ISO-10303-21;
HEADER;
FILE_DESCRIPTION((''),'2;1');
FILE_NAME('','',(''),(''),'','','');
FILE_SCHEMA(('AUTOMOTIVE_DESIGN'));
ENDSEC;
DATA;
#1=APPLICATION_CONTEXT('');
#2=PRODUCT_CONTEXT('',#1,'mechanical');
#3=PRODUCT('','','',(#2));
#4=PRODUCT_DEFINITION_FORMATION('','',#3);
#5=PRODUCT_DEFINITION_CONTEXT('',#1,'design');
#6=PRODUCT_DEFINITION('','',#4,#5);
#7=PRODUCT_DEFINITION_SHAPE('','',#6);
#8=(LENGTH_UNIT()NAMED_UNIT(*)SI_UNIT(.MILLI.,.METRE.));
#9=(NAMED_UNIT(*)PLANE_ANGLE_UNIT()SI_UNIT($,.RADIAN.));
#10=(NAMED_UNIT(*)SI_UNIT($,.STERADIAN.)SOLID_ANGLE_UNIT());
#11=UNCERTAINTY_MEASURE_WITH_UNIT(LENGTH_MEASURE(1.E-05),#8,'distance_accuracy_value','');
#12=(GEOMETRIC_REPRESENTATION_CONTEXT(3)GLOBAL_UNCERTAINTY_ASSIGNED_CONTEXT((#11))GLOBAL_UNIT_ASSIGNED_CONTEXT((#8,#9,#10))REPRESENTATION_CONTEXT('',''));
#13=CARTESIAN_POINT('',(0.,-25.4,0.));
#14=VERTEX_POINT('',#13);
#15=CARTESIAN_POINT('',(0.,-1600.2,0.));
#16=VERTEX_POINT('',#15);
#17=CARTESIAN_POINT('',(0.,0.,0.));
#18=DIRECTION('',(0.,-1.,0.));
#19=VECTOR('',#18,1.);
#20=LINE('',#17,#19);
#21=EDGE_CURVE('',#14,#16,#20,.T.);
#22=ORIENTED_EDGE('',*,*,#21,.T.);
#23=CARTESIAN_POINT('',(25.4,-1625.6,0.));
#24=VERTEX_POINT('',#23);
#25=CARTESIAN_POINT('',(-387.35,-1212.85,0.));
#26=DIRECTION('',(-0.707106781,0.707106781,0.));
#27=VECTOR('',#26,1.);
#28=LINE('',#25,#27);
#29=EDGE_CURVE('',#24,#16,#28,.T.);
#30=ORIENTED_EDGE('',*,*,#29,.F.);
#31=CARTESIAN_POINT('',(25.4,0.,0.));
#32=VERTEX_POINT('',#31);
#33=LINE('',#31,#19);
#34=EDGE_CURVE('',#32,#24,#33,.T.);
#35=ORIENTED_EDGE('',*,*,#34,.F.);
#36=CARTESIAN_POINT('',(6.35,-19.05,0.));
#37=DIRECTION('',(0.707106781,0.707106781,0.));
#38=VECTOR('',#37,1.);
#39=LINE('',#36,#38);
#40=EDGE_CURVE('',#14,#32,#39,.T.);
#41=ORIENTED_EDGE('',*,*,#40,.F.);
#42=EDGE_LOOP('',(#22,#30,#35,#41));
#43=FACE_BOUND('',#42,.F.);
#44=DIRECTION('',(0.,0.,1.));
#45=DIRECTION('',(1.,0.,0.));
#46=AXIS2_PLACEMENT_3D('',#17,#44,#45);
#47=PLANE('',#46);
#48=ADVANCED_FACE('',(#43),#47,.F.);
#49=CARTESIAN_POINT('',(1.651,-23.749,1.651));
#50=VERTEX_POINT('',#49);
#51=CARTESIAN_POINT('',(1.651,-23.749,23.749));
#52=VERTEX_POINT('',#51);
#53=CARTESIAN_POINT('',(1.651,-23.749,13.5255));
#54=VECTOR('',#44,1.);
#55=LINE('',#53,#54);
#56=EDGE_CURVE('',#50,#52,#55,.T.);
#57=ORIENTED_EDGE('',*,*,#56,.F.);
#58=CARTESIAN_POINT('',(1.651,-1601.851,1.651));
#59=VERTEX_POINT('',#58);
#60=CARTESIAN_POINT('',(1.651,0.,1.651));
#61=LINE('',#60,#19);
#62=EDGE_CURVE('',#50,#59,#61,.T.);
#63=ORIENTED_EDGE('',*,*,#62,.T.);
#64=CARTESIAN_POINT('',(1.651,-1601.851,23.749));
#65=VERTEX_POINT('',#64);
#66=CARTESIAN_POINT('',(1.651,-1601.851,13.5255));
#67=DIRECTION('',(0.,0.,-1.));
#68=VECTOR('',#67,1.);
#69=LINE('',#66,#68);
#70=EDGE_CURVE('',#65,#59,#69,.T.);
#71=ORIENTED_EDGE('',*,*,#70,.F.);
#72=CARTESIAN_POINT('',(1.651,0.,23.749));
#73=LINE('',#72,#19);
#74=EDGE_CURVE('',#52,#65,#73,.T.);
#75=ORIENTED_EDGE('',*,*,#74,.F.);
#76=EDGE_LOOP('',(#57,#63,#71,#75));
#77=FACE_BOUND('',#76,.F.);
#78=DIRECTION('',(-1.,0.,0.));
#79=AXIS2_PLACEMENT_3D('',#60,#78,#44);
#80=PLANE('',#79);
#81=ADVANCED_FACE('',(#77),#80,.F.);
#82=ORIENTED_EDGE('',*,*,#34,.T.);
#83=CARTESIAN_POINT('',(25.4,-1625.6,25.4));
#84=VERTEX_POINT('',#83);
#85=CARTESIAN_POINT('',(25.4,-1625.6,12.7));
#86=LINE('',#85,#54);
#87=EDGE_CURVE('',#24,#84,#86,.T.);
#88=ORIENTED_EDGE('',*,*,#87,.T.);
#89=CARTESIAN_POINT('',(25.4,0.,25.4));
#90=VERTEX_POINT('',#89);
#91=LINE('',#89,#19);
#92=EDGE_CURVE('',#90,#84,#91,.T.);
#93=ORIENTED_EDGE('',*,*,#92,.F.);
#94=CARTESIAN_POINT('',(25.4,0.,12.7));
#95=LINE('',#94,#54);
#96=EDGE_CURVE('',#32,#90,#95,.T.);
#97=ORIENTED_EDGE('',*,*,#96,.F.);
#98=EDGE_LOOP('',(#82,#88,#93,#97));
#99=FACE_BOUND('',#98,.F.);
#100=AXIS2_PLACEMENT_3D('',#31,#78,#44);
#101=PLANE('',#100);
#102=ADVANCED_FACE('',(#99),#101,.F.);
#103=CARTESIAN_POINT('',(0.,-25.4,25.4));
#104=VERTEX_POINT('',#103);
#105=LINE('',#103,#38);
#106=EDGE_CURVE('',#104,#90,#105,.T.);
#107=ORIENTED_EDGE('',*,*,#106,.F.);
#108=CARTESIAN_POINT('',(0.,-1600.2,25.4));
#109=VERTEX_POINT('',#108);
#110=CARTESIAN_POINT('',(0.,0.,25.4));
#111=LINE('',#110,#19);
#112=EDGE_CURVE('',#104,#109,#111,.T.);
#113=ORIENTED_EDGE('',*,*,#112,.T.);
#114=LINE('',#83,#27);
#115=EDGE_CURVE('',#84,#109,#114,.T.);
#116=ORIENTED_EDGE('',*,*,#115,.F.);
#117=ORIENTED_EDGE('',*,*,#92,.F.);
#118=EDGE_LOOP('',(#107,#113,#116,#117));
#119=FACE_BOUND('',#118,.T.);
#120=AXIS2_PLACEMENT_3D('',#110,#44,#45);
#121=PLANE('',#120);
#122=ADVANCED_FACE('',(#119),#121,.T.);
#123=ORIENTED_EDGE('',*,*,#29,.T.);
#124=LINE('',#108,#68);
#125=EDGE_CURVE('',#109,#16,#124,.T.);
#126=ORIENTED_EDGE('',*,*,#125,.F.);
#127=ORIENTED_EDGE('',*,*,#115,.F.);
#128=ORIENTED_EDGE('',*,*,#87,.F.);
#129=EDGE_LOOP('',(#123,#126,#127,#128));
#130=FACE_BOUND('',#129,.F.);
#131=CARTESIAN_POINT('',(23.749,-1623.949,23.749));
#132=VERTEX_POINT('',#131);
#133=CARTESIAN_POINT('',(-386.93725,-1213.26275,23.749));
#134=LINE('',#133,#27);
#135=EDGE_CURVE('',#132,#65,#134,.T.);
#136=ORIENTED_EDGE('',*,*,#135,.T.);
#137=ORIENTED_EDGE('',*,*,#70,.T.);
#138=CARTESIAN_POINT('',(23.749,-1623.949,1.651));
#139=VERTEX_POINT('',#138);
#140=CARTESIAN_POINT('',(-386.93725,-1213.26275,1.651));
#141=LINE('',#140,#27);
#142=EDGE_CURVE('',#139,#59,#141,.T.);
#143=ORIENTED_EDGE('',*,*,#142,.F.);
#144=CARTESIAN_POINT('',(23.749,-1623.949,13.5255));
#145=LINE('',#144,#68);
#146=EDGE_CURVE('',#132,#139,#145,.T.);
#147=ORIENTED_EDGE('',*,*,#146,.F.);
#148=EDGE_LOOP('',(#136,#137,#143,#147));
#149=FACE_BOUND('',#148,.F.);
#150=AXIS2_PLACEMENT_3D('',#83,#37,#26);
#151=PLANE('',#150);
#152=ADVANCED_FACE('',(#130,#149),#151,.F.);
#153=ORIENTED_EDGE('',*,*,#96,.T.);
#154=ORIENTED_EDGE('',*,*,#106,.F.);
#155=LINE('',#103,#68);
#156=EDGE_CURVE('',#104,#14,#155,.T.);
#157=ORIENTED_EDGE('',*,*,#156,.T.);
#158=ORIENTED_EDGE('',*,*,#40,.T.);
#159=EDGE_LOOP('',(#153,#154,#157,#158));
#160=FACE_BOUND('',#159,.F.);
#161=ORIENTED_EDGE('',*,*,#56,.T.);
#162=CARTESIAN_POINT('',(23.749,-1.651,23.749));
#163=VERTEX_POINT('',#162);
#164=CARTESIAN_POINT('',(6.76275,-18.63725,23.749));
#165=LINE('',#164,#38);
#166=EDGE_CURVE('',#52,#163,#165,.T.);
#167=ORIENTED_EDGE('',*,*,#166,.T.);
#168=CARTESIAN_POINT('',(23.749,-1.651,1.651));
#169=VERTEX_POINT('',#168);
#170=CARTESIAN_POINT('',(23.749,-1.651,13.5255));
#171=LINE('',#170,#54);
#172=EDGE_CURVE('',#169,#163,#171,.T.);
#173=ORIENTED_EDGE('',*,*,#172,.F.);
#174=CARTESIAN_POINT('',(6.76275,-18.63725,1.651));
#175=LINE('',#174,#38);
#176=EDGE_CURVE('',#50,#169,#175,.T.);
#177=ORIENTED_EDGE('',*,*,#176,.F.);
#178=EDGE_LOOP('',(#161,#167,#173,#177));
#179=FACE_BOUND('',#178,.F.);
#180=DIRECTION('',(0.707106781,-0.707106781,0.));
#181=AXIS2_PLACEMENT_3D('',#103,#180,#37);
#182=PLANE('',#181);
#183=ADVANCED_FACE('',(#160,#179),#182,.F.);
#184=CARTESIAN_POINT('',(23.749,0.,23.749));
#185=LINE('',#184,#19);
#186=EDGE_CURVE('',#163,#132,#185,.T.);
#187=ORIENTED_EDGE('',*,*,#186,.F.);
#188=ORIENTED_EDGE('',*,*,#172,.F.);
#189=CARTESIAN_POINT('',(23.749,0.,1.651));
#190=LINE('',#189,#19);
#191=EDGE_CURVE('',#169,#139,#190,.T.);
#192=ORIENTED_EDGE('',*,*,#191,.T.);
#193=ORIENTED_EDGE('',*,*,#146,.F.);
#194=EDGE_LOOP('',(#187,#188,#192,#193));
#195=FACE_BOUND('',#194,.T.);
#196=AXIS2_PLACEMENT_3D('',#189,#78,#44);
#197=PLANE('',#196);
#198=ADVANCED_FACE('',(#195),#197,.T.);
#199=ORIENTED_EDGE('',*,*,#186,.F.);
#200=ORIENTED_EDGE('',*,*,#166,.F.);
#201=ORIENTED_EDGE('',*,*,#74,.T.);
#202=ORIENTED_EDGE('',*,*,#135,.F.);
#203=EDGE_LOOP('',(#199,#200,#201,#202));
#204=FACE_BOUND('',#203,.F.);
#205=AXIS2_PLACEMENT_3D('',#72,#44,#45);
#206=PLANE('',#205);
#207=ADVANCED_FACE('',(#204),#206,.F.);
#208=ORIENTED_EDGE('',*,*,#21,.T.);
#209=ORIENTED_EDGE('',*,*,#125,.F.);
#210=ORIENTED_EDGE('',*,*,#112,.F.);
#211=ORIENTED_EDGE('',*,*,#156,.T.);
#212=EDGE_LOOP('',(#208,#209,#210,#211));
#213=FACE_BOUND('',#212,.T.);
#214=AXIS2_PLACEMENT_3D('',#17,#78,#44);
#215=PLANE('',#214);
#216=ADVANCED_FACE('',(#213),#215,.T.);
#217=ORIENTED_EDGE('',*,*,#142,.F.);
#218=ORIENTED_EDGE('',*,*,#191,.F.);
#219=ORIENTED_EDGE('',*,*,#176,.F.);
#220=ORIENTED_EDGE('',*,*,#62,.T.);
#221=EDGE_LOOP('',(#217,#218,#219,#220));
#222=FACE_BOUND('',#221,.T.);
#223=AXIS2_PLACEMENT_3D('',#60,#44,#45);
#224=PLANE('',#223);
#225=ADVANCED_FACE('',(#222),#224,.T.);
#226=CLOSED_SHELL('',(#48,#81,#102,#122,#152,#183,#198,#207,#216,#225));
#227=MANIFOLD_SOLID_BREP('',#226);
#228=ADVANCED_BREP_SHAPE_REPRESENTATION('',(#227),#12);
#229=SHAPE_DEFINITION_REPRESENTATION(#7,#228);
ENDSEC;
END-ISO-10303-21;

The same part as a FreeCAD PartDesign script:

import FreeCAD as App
import Part
import Sketcher
Q = App.Units.Quantity

doc = App.newDocument("Part")
body = doc.addObject("PartDesign::Body", "Body")

sketch1 = body.newObject("Sketcher::SketchObject", "Sketch")
sketch1.AttachmentSupport = (doc.getObject("XZ_Plane"), [""])
sketch1.MapMode = "FlatFace"
sketch1.addGeometry([
    Part.LineSegment(App.Vector(0, 25.4, 0), App.Vector(0, 0, 0)),
    Part.LineSegment(App.Vector(0, 0, 0), App.Vector(25.4, 0, 0)),
    Part.LineSegment(App.Vector(25.4, 0, 0), App.Vector(25.4, 25.4, 0)),
    Part.LineSegment(App.Vector(25.4, 25.4, 0), App.Vector(0, 25.4, 0)),
    Part.LineSegment(App.Vector(23.749, 1.651, 0), App.Vector(1.651, 1.651, 0)),
    Part.LineSegment(App.Vector(1.651, 1.651, 0), App.Vector(1.651, 23.749, 0)),
    Part.LineSegment(App.Vector(1.651, 23.749, 0), App.Vector(23.749, 23.749, 0)),
    Part.LineSegment(App.Vector(23.749, 23.749, 0), App.Vector(23.749, 1.651, 0)),
], False)
sketch1.addConstraint([
    Sketcher.Constraint("Coincident", 0, 2, 1, 1),
    Sketcher.Constraint("Coincident", 1, 2, 2, 1),
    Sketcher.Constraint("Coincident", 2, 2, 3, 1),
    Sketcher.Constraint("Coincident", 3, 2, 0, 1),
    Sketcher.Constraint("Coincident", 4, 2, 5, 1),
    Sketcher.Constraint("Coincident", 5, 2, 6, 1),
    Sketcher.Constraint("Coincident", 6, 2, 7, 1),
    Sketcher.Constraint("Coincident", 7, 2, 4, 1),
    Sketcher.Constraint("Vertical", 0),
    Sketcher.Constraint("Horizontal", 1),
    Sketcher.Constraint("Vertical", 2),
    Sketcher.Constraint("Horizontal", 3),
    Sketcher.Constraint("Horizontal", 4),
    Sketcher.Constraint("Vertical", 5),
    Sketcher.Constraint("Horizontal", 6),
    Sketcher.Constraint("Vertical", 7),
    Sketcher.Constraint("Coincident", 0, 2, -1, 1),
    Sketcher.Constraint("Equal", 3, 0),
    Sketcher.Constraint("Equal", 6, 5),
    Sketcher.Constraint("DistanceX", 1, 1, 1, 2, Q("1 in")),
    Sketcher.Constraint("DistanceX", 4, 2, 4, 1, Q("0.87 in")),
    Sketcher.Constraint("DistanceX", -1, 1, 4, 2, Q("0.065 in")),
    Sketcher.Constraint("DistanceY", -1, 1, 4, 2, Q("0.065 in")),
])
pad1 = body.newObject("PartDesign::Pad", "Pad")
pad1.Profile = sketch1
pad1.Length = Q("64 in")

sketch2 = body.newObject("Sketcher::SketchObject", "Sketch001")
sketch2.AttachmentSupport = (doc.getObject("XY_Plane"), [""])
sketch2.MapMode = "FlatFace"
sketch2.AttachmentOffset = App.Placement(App.Vector(0, 0, 1 * 25.4), App.Rotation())
sketch2.addGeometry([
    Part.LineSegment(App.Vector(0, -1625.6, 0), App.Vector(25.4, -1625.6, 0)),
    Part.LineSegment(App.Vector(25.4, -1625.6, 0), App.Vector(0, -1600.2, 0)),
    Part.LineSegment(App.Vector(0, -1600.2, 0), App.Vector(0, -1625.6, 0)),
], False)
sketch2.addConstraint([
    Sketcher.Constraint("Coincident", 0, 2, 1, 1),
    Sketcher.Constraint("Coincident", 1, 2, 2, 1),
    Sketcher.Constraint("Coincident", 2, 2, 0, 1),
    Sketcher.Constraint("Horizontal", 0),
    Sketcher.Constraint("Vertical", 2),
    Sketcher.Constraint("PointOnObject", 1, 2, -2),
    Sketcher.Constraint("Equal", 0, 2),
    Sketcher.Constraint("DistanceX", 0, 1, 0, 2, Q("1 in")),
    Sketcher.Constraint("DistanceY", 0, 2, -1, 1, Q("64 in")),
])
pocket1 = body.newObject("PartDesign::Pocket", "Pocket")
pocket1.Profile = sketch2
pocket1.Type = "ThroughAll"

sketch3 = body.newObject("Sketcher::SketchObject", "Sketch002")
sketch3.AttachmentSupport = (doc.getObject("XY_Plane"), [""])
sketch3.MapMode = "FlatFace"
sketch3.AttachmentOffset = App.Placement(App.Vector(0, 0, 1 * 25.4), App.Rotation())
sketch3.addGeometry([
    Part.LineSegment(App.Vector(0, -25.4, 0), App.Vector(25.4, 0, 0)),
    Part.LineSegment(App.Vector(25.4, 0, 0), App.Vector(0, 0, 0)),
    Part.LineSegment(App.Vector(0, 0, 0), App.Vector(0, -25.4, 0)),
], False)
sketch3.addConstraint([
    Sketcher.Constraint("Coincident", 0, 2, 1, 1),
    Sketcher.Constraint("Coincident", 1, 2, 2, 1),
    Sketcher.Constraint("Coincident", 2, 2, 0, 1),
    Sketcher.Constraint("Horizontal", 1),
    Sketcher.Constraint("Vertical", 2),
    Sketcher.Constraint("Coincident", 1, 2, -1, 1),
    Sketcher.Constraint("Equal", 1, 2),
    Sketcher.Constraint("DistanceX", 1, 2, 1, 1, Q("1 in")),
])
pocket2 = body.newObject("PartDesign::Pocket", "Pocket001")
pocket2.Profile = sketch3
pocket2.Type = "ThroughAll"

doc.recompute()
